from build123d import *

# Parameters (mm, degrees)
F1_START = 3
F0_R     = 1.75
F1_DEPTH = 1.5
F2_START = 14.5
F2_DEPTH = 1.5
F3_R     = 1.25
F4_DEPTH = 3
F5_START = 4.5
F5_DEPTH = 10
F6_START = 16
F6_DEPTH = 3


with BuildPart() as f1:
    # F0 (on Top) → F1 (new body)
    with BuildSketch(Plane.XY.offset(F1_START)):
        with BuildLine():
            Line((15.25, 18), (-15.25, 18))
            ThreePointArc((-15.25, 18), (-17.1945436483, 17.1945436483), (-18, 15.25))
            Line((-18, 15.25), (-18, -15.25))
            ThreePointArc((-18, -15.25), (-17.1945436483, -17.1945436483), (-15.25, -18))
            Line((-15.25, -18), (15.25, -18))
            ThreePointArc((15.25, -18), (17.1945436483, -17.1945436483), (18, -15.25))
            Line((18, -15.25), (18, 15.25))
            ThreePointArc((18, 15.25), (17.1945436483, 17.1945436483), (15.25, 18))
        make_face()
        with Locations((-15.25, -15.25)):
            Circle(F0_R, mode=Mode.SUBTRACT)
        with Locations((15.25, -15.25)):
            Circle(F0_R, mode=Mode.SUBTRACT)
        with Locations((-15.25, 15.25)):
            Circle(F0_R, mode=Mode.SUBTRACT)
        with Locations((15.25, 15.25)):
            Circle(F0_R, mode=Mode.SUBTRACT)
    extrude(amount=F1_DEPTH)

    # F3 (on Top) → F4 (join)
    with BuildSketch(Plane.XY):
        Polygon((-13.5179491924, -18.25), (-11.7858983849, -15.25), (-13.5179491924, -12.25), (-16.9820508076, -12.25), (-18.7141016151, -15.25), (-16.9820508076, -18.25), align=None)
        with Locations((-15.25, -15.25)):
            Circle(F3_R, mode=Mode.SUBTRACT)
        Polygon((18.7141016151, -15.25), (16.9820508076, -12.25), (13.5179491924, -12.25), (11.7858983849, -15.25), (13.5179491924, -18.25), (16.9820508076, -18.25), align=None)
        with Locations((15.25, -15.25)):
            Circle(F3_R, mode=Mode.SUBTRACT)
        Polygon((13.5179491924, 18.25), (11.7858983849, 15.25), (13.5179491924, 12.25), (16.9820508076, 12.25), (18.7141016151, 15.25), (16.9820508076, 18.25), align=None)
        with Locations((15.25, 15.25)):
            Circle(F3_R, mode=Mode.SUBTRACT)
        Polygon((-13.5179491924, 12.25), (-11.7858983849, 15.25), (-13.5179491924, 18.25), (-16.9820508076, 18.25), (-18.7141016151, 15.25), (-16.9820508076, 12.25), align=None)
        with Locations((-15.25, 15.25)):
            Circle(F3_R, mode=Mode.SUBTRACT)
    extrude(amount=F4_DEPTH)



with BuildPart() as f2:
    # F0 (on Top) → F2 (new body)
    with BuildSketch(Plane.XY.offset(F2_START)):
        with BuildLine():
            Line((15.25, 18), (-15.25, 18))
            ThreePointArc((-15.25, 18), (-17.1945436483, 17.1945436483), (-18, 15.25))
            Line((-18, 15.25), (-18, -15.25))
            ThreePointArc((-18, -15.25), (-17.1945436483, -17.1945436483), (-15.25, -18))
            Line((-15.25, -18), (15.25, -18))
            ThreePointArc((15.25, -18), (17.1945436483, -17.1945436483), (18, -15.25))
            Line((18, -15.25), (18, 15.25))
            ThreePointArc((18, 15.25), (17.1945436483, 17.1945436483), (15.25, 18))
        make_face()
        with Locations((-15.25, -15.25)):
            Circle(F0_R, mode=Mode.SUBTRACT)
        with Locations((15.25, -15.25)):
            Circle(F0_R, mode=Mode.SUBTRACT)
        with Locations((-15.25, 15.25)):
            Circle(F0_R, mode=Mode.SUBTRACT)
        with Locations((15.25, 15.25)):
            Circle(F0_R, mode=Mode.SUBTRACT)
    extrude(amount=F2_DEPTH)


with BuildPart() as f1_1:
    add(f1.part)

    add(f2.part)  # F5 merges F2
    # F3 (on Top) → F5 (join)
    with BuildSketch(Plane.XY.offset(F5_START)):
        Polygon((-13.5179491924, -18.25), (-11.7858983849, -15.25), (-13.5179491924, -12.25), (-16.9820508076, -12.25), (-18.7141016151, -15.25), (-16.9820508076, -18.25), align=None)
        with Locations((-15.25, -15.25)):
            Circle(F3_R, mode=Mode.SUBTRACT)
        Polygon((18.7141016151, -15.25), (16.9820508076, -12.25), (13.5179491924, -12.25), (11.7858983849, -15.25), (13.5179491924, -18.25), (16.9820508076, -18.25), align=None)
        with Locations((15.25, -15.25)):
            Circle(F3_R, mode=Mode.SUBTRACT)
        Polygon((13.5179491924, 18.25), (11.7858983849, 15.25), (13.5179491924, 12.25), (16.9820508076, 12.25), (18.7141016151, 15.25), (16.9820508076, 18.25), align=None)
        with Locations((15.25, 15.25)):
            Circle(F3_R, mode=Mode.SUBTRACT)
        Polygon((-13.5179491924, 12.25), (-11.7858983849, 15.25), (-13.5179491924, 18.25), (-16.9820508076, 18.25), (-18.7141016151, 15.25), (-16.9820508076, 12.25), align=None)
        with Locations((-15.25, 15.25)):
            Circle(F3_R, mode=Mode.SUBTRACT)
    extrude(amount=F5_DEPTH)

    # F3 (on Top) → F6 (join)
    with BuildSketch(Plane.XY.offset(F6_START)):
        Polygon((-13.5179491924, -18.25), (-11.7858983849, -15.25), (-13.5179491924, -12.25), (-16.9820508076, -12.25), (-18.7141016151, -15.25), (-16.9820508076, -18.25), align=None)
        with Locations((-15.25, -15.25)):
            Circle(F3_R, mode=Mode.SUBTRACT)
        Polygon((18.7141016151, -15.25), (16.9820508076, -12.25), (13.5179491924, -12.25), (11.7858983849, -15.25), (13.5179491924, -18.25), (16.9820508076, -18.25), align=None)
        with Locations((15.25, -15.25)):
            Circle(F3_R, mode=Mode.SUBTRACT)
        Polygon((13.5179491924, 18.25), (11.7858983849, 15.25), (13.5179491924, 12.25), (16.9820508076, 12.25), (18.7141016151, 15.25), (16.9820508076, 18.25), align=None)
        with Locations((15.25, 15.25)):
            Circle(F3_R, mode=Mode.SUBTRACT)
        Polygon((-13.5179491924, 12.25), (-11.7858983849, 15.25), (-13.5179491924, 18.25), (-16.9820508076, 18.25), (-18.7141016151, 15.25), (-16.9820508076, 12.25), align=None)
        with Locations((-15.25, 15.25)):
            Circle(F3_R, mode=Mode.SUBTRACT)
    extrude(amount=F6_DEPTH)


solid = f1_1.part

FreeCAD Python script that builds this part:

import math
import FreeCAD as App
import Part
import Sketcher

V = App.Vector
Q = App.Units.Quantity


def add_polygon(sketch, points):
    """Adds a closed chain of lines whose ends are joined by coincident constraints."""
    first, n = sketch.GeometryCount, len(points)
    for a, b in zip(points, points[1:] + points[:1]):
        sketch.addGeometry(Part.LineSegment(App.Vector(*a, 0), App.Vector(*b, 0)), False)
    for i in range(n):
        sketch.addConstraint(Sketcher.Constraint("Coincident", first + i, 2, first + (i + 1) % n, 1))

doc = App.newDocument("Part")
body = doc.addObject("PartDesign::Body", "Body")

# Sketch on XY plane
sketch1 = body.newObject("Sketcher::SketchObject", "Sketch")
sketch1.AttachmentSupport = (doc.getObject("XY_Plane"), [""])
sketch1.MapMode = "FlatFace"
sketch1.AttachmentOffset = App.Placement(V(0, 0, 3), App.Rotation())
sketch1.addGeometry(Part.LineSegment(V(15.2, 18, 0), V(-15.2, 18, 0)), False)
sketch1.addGeometry(Part.ArcOfCircle(Part.Circle(V(-15.2, 15.2, 0), V(0, 0, 1), 2.8), math.radians(90), math.radians(180)), False)
sketch1.addGeometry(Part.LineSegment(V(-18, 15.2, 0), V(-18, -15.2, 0)), False)
sketch1.addGeometry(Part.ArcOfCircle(Part.Circle(V(-15.2, -15.2, 0), V(0, 0, 1), 2.8), math.radians(180), math.radians(270)), False)
sketch1.addGeometry(Part.LineSegment(V(-15.2, -18, 0), V(15.2, -18, 0)), False)
sketch1.addGeometry(Part.ArcOfCircle(Part.Circle(V(15.2, -15.2, 0), V(0, 0, 1), 2.8), math.radians(-90), math.radians(0)), False)
sketch1.addGeometry(Part.LineSegment(V(18, -15.2, 0), V(18, 15.2, 0)), False)
sketch1.addGeometry(Part.ArcOfCircle(Part.Circle(V(15.2, 15.2, 0), V(0, 0, 1), 2.8), math.radians(0), math.radians(90)), False)
sketch1.addGeometry(Part.Circle(V(-15.2, -15.2, 0), V(0, 0, 1), 1.8), False)
sketch1.addGeometry(Part.Circle(V(15.2, -15.2, 0), V(0, 0, 1), 1.8), False)
sketch1.addGeometry(Part.Circle(V(-15.2, 15.2, 0), V(0, 0, 1), 1.8), False)
sketch1.addGeometry(Part.Circle(V(15.2, 15.2, 0), V(0, 0, 1), 1.8), False)
sketch1.addConstraint(Sketcher.Constraint("Tangent", 0, 2, 1, 1))
sketch1.addConstraint(Sketcher.Constraint("Tangent", 1, 2, 2, 1))
sketch1.addConstraint(Sketcher.Constraint("Tangent", 2, 2, 3, 1))
sketch1.addConstraint(Sketcher.Constraint("Tangent", 3, 2, 4, 1))
sketch1.addConstraint(Sketcher.Constraint("Tangent", 4, 2, 5, 1))
sketch1.addConstraint(Sketcher.Constraint("Tangent", 5, 2, 6, 1))
sketch1.addConstraint(Sketcher.Constraint("Tangent", 6, 2, 7, 1))
sketch1.addConstraint(Sketcher.Constraint("Tangent", 7, 2, 0, 1))
sketch1.addConstraint(Sketcher.Constraint("Horizontal", 0))
sketch1.addConstraint(Sketcher.Constraint("Vertical", 2))
sketch1.addConstraint(Sketcher.Constraint("Horizontal", 4))
sketch1.addConstraint(Sketcher.Constraint("Vertical", 6))
sketch1.addConstraint(Sketcher.Constraint("Coincident", 8, 3, 3, 3))
sketch1.addConstraint(Sketcher.Constraint("Coincident", 9, 3, 5, 3))
sketch1.addConstraint(Sketcher.Constraint("Coincident", 10, 3, 1, 3))
sketch1.addConstraint(Sketcher.Constraint("Coincident", 11, 3, 7, 3))
sketch1.addConstraint(Sketcher.Constraint("Equal", 1, 3))
sketch1.addConstraint(Sketcher.Constraint("Equal", 3, 5))
sketch1.addConstraint(Sketcher.Constraint("Equal", 5, 7))
sketch1.addConstraint(Sketcher.Constraint("Equal", 8, 9))
sketch1.addConstraint(Sketcher.Constraint("Equal", 9, 10))
sketch1.addConstraint(Sketcher.Constraint("Equal", 10, 11))
sketch1.addConstraint(Sketcher.Constraint("Symmetric", 1, 3, 5, 3, -1, 1))
sketch1.addConstraint(Sketcher.Constraint("Equal", 4, 2))
sketch1.addConstraint(Sketcher.Constraint("Diameter", 8, 3.5))
sketch1.addConstraint(Sketcher.Constraint("Radius", 1, 2.75))
sketch1.addConstraint(Sketcher.Constraint("DistanceX", 0, 2, 0, 1, 30.5))
pad1 = body.newObject("PartDesign::Pad", "Pad")
pad1.Profile = sketch1
pad1.Length = 1.5

# Sketch on XY plane
sketch2 = body.newObject("Sketcher::SketchObject", "Sketch001")
sketch2.AttachmentSupport = (doc.getObject("XY_Plane"), [""])
sketch2.MapMode = "FlatFace"
add_polygon(sketch2, [(-13.5, -18.2), (-11.8, -15.2), (-13.5, -12.2), (-17, -12.2), (-18.7, -15.2), (-17, -18.2)])  # lines 0-5
sketch2.addGeometry(Part.Circle(V(-15.2, -15.2, 0), V(0, 0, 1), 1.2), False)  # 6
add_polygon(sketch2, [(18.7, -15.2), (17, -12.2), (13.5, -12.2), (11.8, -15.2), (13.5, -18.2), (17, -18.2)])  # lines 7-12
sketch2.addGeometry(Part.Circle(V(15.2, -15.2, 0), V(0, 0, 1), 1.2), False)  # 13
add_polygon(sketch2, [(13.5, 18.2), (11.8, 15.2), (13.5, 12.2), (17, 12.2), (18.7, 15.2), (17, 18.2)])  # lines 14-19
sketch2.addGeometry(Part.Circle(V(15.2, 15.2, 0), V(0, 0, 1), 1.2), False)  # 20
add_polygon(sketch2, [(-13.5, 12.2), (-11.8, 15.2), (-13.5, 18.2), (-17, 18.2), (-18.7, 15.2), (-17, 12.2)])  # lines 21-26
sketch2.addGeometry(Part.Circle(V(-15.2, 15.2, 0), V(0, 0, 1), 1.2), False)  # 27
sketch2.addConstraint(Sketcher.Constraint("Horizontal", 2))
sketch2.addConstraint(Sketcher.Constraint("Horizontal", 5))
sketch2.addConstraint(Sketcher.Constraint("Horizontal", 8))
sketch2.addConstraint(Sketcher.Constraint("Horizontal", 11))
sketch2.addConstraint(Sketcher.Constraint("Horizontal", 16))
sketch2.addConstraint(Sketcher.Constraint("Horizontal", 19))
sketch2.addConstraint(Sketcher.Constraint("Horizontal", 23))
sketch2.addConstraint(Sketcher.Constraint("Horizontal", 26))
sketch2.addConstraint(Sketcher.Constraint("Equal", 6, 13))
sketch2.addConstraint(Sketcher.Constraint("Equal", 13, 20))
sketch2.addConstraint(Sketcher.Constraint("Equal", 20, 27))
sketch2.addConstraint(Sketcher.Constraint("Symmetric", 6, 3, 20, 3, -1, 1))
sketch2.addConstraint(Sketcher.Constraint("Symmetric", 13, 3, 27, 3, -1, 1))
sketch2.addConstraint(Sketcher.Constraint("Symmetric", 0, 2, 14, 2, -1, 1))
sketch2.addConstraint(Sketcher.Constraint("Symmetric", 1, 2, 15, 2, -1, 1))
sketch2.addConstraint(Sketcher.Constraint("Symmetric", 3, 2, 17, 2, -1, 1))
sketch2.addConstraint(Sketcher.Constraint("Symmetric", 4, 2, 18, 2, -1, 1))
sketch2.addConstraint(Sketcher.Constraint("Symmetric", 9, 2, 21, 2, -1, 1))
sketch2.addConstraint(Sketcher.Constraint("Symmetric", 10, 2, 22, 2, -1, 1))
sketch2.addConstraint(Sketcher.Constraint("Symmetric", 12, 2, 24, 2, -1, 1))
sketch2.addConstraint(Sketcher.Constraint("Symmetric", 7, 2, 25, 2, -1, 1))
sketch2.addConstraint(Sketcher.Constraint("Symmetric", 6, 3, 13, 3, -2))
sketch2.addConstraint(Sketcher.Constraint("Symmetric", 2, 2, 7, 2, -2))
sketch2.addConstraint(Sketcher.Constraint("Symmetric", 0, 2, 9, 2, -2))
sketch2.addConstraint(Sketcher.Constraint("Symmetric", 5, 2, 10, 2, -2))
sketch2.addConstraint(Sketcher.Constraint("Symmetric", 3, 2, 12, 2, -2))
sketch2.addConstraint(Sketcher.Constraint("Parallel", 0, 3))
sketch2.addConstraint(Sketcher.Constraint("Parallel", 1, 4))
sketch2.addConstraint(Sketcher.Constraint("Parallel", 4, 7))
sketch2.addConstraint(Sketcher.Constraint("Parallel", 3, 9))
sketch2.addConstraint(Sketcher.Constraint("Parallel", 9, 12))
sketch2.addConstraint(Sketcher.Constraint("Parallel", 12, 14))
sketch2.addConstraint(Sketcher.Constraint("Parallel", 14, 17))
sketch2.addConstraint(Sketcher.Constraint("Parallel", 17, 21))
sketch2.addConstraint(Sketcher.Constraint("Parallel", 21, 24))
sketch2.addConstraint(Sketcher.Constraint("Horizontal", 13, 3, 0, 2))
sketch2.addConstraint(Sketcher.Constraint("Horizontal", 0, 2, 3, 2))
sketch2.addConstraint(Sketcher.Constraint("Vertical", 2, 2, 4, 2))
sketch2.addConstraint(Sketcher.Constraint("Diameter", 6, 2.5))
sketch2.addConstraint(Sketcher.Constraint("Angle", 0, Q("60 deg")))
sketch2.addConstraint(Sketcher.Constraint("DistanceY", 0, 2, 1, 2, 3.0))
sketch2.addConstraint(Sketcher.Constraint("DistanceX", 6, 3, 13, 3, 30.5))
sketch2.addConstraint(Sketcher.Constraint("DistanceY", 13, 3, 20, 3, 30.5))
sketch2.addConstraint(Sketcher.Constraint("DistanceX", 1, 2, 7, 2, 30.5))
sketch2.addConstraint(Sketcher.Constraint("DistanceX", 2, 2, 2, 1, 3.464102))
pad2 = body.newObject("PartDesign::Pad", "Pad001")
pad2.Profile = sketch2
pad2.Length = 3
body2 = doc.addObject("PartDesign::Body", "Body001")

# Sketch on XY plane
sketch3 = body2.newObject("Sketcher::SketchObject", "Sketch002")
sketch3.AttachmentSupport = (doc.getObject("XY_Plane001"), [""])
sketch3.MapMode = "FlatFace"
sketch3.AttachmentOffset = App.Placement(V(0, 0, 14.5), App.Rotation())
sketch3.addGeometry(Part.LineSegment(V(15.2, 18, 0), V(-15.2, 18, 0)), False)
sketch3.addGeometry(Part.ArcOfCircle(Part.Circle(V(-15.2, 15.2, 0), V(0, 0, 1), 2.8), math.radians(90), math.radians(180)), False)
sketch3.addGeometry(Part.LineSegment(V(-18, 15.2, 0), V(-18, -15.2, 0)), False)
sketch3.addGeometry(Part.ArcOfCircle(Part.Circle(V(-15.2, -15.2, 0), V(0, 0, 1), 2.8), math.radians(180), math.radians(270)), False)
sketch3.addGeometry(Part.LineSegment(V(-15.2, -18, 0), V(15.2, -18, 0)), False)
sketch3.addGeometry(Part.ArcOfCircle(Part.Circle(V(15.2, -15.2, 0), V(0, 0, 1), 2.8), math.radians(-90), math.radians(0)), False)
sketch3.addGeometry(Part.LineSegment(V(18, -15.2, 0), V(18, 15.2, 0)), False)
sketch3.addGeometry(Part.ArcOfCircle(Part.Circle(V(15.2, 15.2, 0), V(0, 0, 1), 2.8), math.radians(0), math.radians(90)), False)
sketch3.addGeometry(Part.Circle(V(-15.2, -15.2, 0), V(0, 0, 1), 1.8), False)
sketch3.addGeometry(Part.Circle(V(15.2, -15.2, 0), V(0, 0, 1), 1.8), False)
sketch3.addGeometry(Part.Circle(V(-15.2, 15.2, 0), V(0, 0, 1), 1.8), False)
sketch3.addGeometry(Part.Circle(V(15.2, 15.2, 0), V(0, 0, 1), 1.8), False)
sketch3.addConstraint(Sketcher.Constraint("Tangent", 0, 2, 1, 1))
sketch3.addConstraint(Sketcher.Constraint("Tangent", 1, 2, 2, 1))
sketch3.addConstraint(Sketcher.Constraint("Tangent", 2, 2, 3, 1))
sketch3.addConstraint(Sketcher.Constraint("Tangent", 3, 2, 4, 1))
sketch3.addConstraint(Sketcher.Constraint("Tangent", 4, 2, 5, 1))
sketch3.addConstraint(Sketcher.Constraint("Tangent", 5, 2, 6, 1))
sketch3.addConstraint(Sketcher.Constraint("Tangent", 6, 2, 7, 1))
sketch3.addConstraint(Sketcher.Constraint("Tangent", 7, 2, 0, 1))
sketch3.addConstraint(Sketcher.Constraint("Horizontal", 0))
sketch3.addConstraint(Sketcher.Constraint("Vertical", 2))
sketch3.addConstraint(Sketcher.Constraint("Horizontal", 4))
sketch3.addConstraint(Sketcher.Constraint("Vertical", 6))
sketch3.addConstraint(Sketcher.Constraint("Coincident", 8, 3, 3, 3))
sketch3.addConstraint(Sketcher.Constraint("Coincident", 9, 3, 5, 3))
sketch3.addConstraint(Sketcher.Constraint("Coincident", 10, 3, 1, 3))
sketch3.addConstraint(Sketcher.Constraint("Coincident", 11, 3, 7, 3))
sketch3.addConstraint(Sketcher.Constraint("Equal", 1, 3))
sketch3.addConstraint(Sketcher.Constraint("Equal", 3, 5))
sketch3.addConstraint(Sketcher.Constraint("Equal", 5, 7))
sketch3.addConstraint(Sketcher.Constraint("Equal", 8, 9))
sketch3.addConstraint(Sketcher.Constraint("Equal", 9, 10))
sketch3.addConstraint(Sketcher.Constraint("Equal", 10, 11))
sketch3.addConstraint(Sketcher.Constraint("Symmetric", 1, 3, 5, 3, -1, 1))
sketch3.addConstraint(Sketcher.Constraint("Equal", 4, 2))
sketch3.addConstraint(Sketcher.Constraint("Diameter", 8, 3.5))
sketch3.addConstraint(Sketcher.Constraint("Radius", 1, 2.75))
sketch3.addConstraint(Sketcher.Constraint("DistanceX", 0, 2, 0, 1, 30.5))
pad3 = body2.newObject("PartDesign::Pad", "Pad002")
pad3.Profile = sketch3
pad3.Length = 1.5
body.AllowCompound = True
doc.recompute()

boolean = body.newObject("PartDesign::Boolean", "Boolean")
boolean.Type = "Fuse"
boolean.addObjects([body2])

# Sketch on XY plane
sketch4 = body.newObject("Sketcher::SketchObject", "Sketch003")
sketch4.AttachmentSupport = (doc.getObject("XY_Plane"), [""])
sketch4.MapMode = "FlatFace"
sketch4.AttachmentOffset = App.Placement(V(0, 0, 4.5), App.Rotation())
add_polygon(sketch4, [(-13.5, -18.2), (-11.8, -15.2), (-13.5, -12.2), (-17, -12.2), (-18.7, -15.2), (-17, -18.2)])  # lines 0-5
sketch4.addGeometry(Part.Circle(V(-15.2, -15.2, 0), V(0, 0, 1), 1.2), False)  # 6
add_polygon(sketch4, [(18.7, -15.2), (17, -12.2), (13.5, -12.2), (11.8, -15.2), (13.5, -18.2), (17, -18.2)])  # lines 7-12
sketch4.addGeometry(Part.Circle(V(15.2, -15.2, 0), V(0, 0, 1), 1.2), False)  # 13
add_polygon(sketch4, [(13.5, 18.2), (11.8, 15.2), (13.5, 12.2), (17, 12.2), (18.7, 15.2), (17, 18.2)])  # lines 14-19
sketch4.addGeometry(Part.Circle(V(15.2, 15.2, 0), V(0, 0, 1), 1.2), False)  # 20
add_polygon(sketch4, [(-13.5, 12.2), (-11.8, 15.2), (-13.5, 18.2), (-17, 18.2), (-18.7, 15.2), (-17, 12.2)])  # lines 21-26
sketch4.addGeometry(Part.Circle(V(-15.2, 15.2, 0), V(0, 0, 1), 1.2), False)  # 27
sketch4.addConstraint(Sketcher.Constraint("Horizontal", 2))
sketch4.addConstraint(Sketcher.Constraint("Horizontal", 5))
sketch4.addConstraint(Sketcher.Constraint("Horizontal", 8))
sketch4.addConstraint(Sketcher.Constraint("Horizontal", 11))
sketch4.addConstraint(Sketcher.Constraint("Horizontal", 16))
sketch4.addConstraint(Sketcher.Constraint("Horizontal", 19))
sketch4.addConstraint(Sketcher.Constraint("Horizontal", 23))
sketch4.addConstraint(Sketcher.Constraint("Horizontal", 26))
sketch4.addConstraint(Sketcher.Constraint("Equal", 6, 13))
sketch4.addConstraint(Sketcher.Constraint("Equal", 13, 20))
sketch4.addConstraint(Sketcher.Constraint("Equal", 20, 27))
sketch4.addConstraint(Sketcher.Constraint("Symmetric", 6, 3, 20, 3, -1, 1))
sketch4.addConstraint(Sketcher.Constraint("Symmetric", 13, 3, 27, 3, -1, 1))
sketch4.addConstraint(Sketcher.Constraint("Symmetric", 0, 2, 14, 2, -1, 1))
sketch4.addConstraint(Sketcher.Constraint("Symmetric", 1, 2, 15, 2, -1, 1))
sketch4.addConstraint(Sketcher.Constraint("Symmetric", 3, 2, 17, 2, -1, 1))
sketch4.addConstraint(Sketcher.Constraint("Symmetric", 4, 2, 18, 2, -1, 1))
sketch4.addConstraint(Sketcher.Constraint("Symmetric", 9, 2, 21, 2, -1, 1))
sketch4.addConstraint(Sketcher.Constraint("Symmetric", 10, 2, 22, 2, -1, 1))
sketch4.addConstraint(Sketcher.Constraint("Symmetric", 12, 2, 24, 2, -1, 1))
sketch4.addConstraint(Sketcher.Constraint("Symmetric", 7, 2, 25, 2, -1, 1))
sketch4.addConstraint(Sketcher.Constraint("Symmetric", 6, 3, 13, 3, -2))
sketch4.addConstraint(Sketcher.Constraint("Symmetric", 2, 2, 7, 2, -2))
sketch4.addConstraint(Sketcher.Constraint("Symmetric", 0, 2, 9, 2, -2))
sketch4.addConstraint(Sketcher.Constraint("Symmetric", 5, 2, 10, 2, -2))
sketch4.addConstraint(Sketcher.Constraint("Symmetric", 3, 2, 12, 2, -2))
sketch4.addConstraint(Sketcher.Constraint("Parallel", 0, 3))
sketch4.addConstraint(Sketcher.Constraint("Parallel", 1, 4))
sketch4.addConstraint(Sketcher.Constraint("Parallel", 4, 7))
sketch4.addConstraint(Sketcher.Constraint("Parallel", 3, 9))
sketch4.addConstraint(Sketcher.Constraint("Parallel", 9, 12))
sketch4.addConstraint(Sketcher.Constraint("Parallel", 12, 14))
sketch4.addConstraint(Sketcher.Constraint("Parallel", 14, 17))
sketch4.addConstraint(Sketcher.Constraint("Parallel", 17, 21))
sketch4.addConstraint(Sketcher.Constraint("Parallel", 21, 24))
sketch4.addConstraint(Sketcher.Constraint("Horizontal", 13, 3, 0, 2))
sketch4.addConstraint(Sketcher.Constraint("Horizontal", 0, 2, 3, 2))
sketch4.addConstraint(Sketcher.Constraint("Vertical", 2, 2, 4, 2))
sketch4.addConstraint(Sketcher.Constraint("Diameter", 6, 2.5))
sketch4.addConstraint(Sketcher.Constraint("Angle", 0, Q("60 deg")))
sketch4.addConstraint(Sketcher.Constraint("DistanceY", 0, 2, 1, 2, 3.0))
sketch4.addConstraint(Sketcher.Constraint("DistanceX", 6, 3, 13, 3, 30.5))
sketch4.addConstraint(Sketcher.Constraint("DistanceY", 13, 3, 20, 3, 30.5))
sketch4.addConstraint(Sketcher.Constraint("DistanceX", 1, 2, 7, 2, 30.5))
sketch4.addConstraint(Sketcher.Constraint("DistanceX", 2, 2, 2, 1, 3.464102))
pad4 = body.newObject("PartDesign::Pad", "Pad003")
pad4.Profile = sketch4
pad4.Length = 10

# Sketch on XY plane
sketch5 = body.newObject("Sketcher::SketchObject", "Sketch004")
sketch5.AttachmentSupport = (doc.getObject("XY_Plane"), [""])
sketch5.MapMode = "FlatFace"
sketch5.AttachmentOffset = App.Placement(V(0, 0, 16), App.Rotation())
add_polygon(sketch5, [(-13.5, -18.2), (-11.8, -15.2), (-13.5, -12.2), (-17, -12.2), (-18.7, -15.2), (-17, -18.2)])  # lines 0-5
sketch5.addGeometry(Part.Circle(V(-15.2, -15.2, 0), V(0, 0, 1), 1.2), False)  # 6
add_polygon(sketch5, [(18.7, -15.2), (17, -12.2), (13.5, -12.2), (11.8, -15.2), (13.5, -18.2), (17, -18.2)])  # lines 7-12
sketch5.addGeometry(Part.Circle(V(15.2, -15.2, 0), V(0, 0, 1), 1.2), False)  # 13
add_polygon(sketch5, [(13.5, 18.2), (11.8, 15.2), (13.5, 12.2), (17, 12.2), (18.7, 15.2), (17, 18.2)])  # lines 14-19
sketch5.addGeometry(Part.Circle(V(15.2, 15.2, 0), V(0, 0, 1), 1.2), False)  # 20
add_polygon(sketch5, [(-13.5, 12.2), (-11.8, 15.2), (-13.5, 18.2), (-17, 18.2), (-18.7, 15.2), (-17, 12.2)])  # lines 21-26
sketch5.addGeometry(Part.Circle(V(-15.2, 15.2, 0), V(0, 0, 1), 1.2), False)  # 27
sketch5.addConstraint(Sketcher.Constraint("Horizontal", 2))
sketch5.addConstraint(Sketcher.Constraint("Horizontal", 5))
sketch5.addConstraint(Sketcher.Constraint("Horizontal", 8))
sketch5.addConstraint(Sketcher.Constraint("Horizontal", 11))
sketch5.addConstraint(Sketcher.Constraint("Horizontal", 16))
sketch5.addConstraint(Sketcher.Constraint("Horizontal", 19))
sketch5.addConstraint(Sketcher.Constraint("Horizontal", 23))
sketch5.addConstraint(Sketcher.Constraint("Horizontal", 26))
sketch5.addConstraint(Sketcher.Constraint("Equal", 6, 13))
sketch5.addConstraint(Sketcher.Constraint("Equal", 13, 20))
sketch5.addConstraint(Sketcher.Constraint("Equal", 20, 27))
sketch5.addConstraint(Sketcher.Constraint("Symmetric", 6, 3, 20, 3, -1, 1))
sketch5.addConstraint(Sketcher.Constraint("Symmetric", 13, 3, 27, 3, -1, 1))
sketch5.addConstraint(Sketcher.Constraint("Symmetric", 0, 2, 14, 2, -1, 1))
sketch5.addConstraint(Sketcher.Constraint("Symmetric", 1, 2, 15, 2, -1, 1))
sketch5.addConstraint(Sketcher.Constraint("Symmetric", 3, 2, 17, 2, -1, 1))
sketch5.addConstraint(Sketcher.Constraint("Symmetric", 4, 2, 18, 2, -1, 1))
sketch5.addConstraint(Sketcher.Constraint("Symmetric", 9, 2, 21, 2, -1, 1))
sketch5.addConstraint(Sketcher.Constraint("Symmetric", 10, 2, 22, 2, -1, 1))
sketch5.addConstraint(Sketcher.Constraint("Symmetric", 12, 2, 24, 2, -1, 1))
sketch5.addConstraint(Sketcher.Constraint("Symmetric", 7, 2, 25, 2, -1, 1))
sketch5.addConstraint(Sketcher.Constraint("Symmetric", 6, 3, 13, 3, -2))
sketch5.addConstraint(Sketcher.Constraint("Symmetric", 2, 2, 7, 2, -2))
sketch5.addConstraint(Sketcher.Constraint("Symmetric", 0, 2, 9, 2, -2))
sketch5.addConstraint(Sketcher.Constraint("Symmetric", 5, 2, 10, 2, -2))
sketch5.addConstraint(Sketcher.Constraint("Symmetric", 3, 2, 12, 2, -2))
sketch5.addConstraint(Sketcher.Constraint("Parallel", 0, 3))
sketch5.addConstraint(Sketcher.Constraint("Parallel", 1, 4))
sketch5.addConstraint(Sketcher.Constraint("Parallel", 4, 7))
sketch5.addConstraint(Sketcher.Constraint("Parallel", 3, 9))
sketch5.addConstraint(Sketcher.Constraint("Parallel", 9, 12))
sketch5.addConstraint(Sketcher.Constraint("Parallel", 12, 14))
sketch5.addConstraint(Sketcher.Constraint("Parallel", 14, 17))
sketch5.addConstraint(Sketcher.Constraint("Parallel", 17, 21))
sketch5.addConstraint(Sketcher.Constraint("Parallel", 21, 24))
sketch5.addConstraint(Sketcher.Constraint("Horizontal", 13, 3, 0, 2))
sketch5.addConstraint(Sketcher.Constraint("Horizontal", 0, 2, 3, 2))
sketch5.addConstraint(Sketcher.Constraint("Vertical", 2, 2, 4, 2))
sketch5.addConstraint(Sketcher.Constraint("Diameter", 6, 2.5))
sketch5.addConstraint(Sketcher.Constraint("Angle", 0, Q("60 deg")))
sketch5.addConstraint(Sketcher.Constraint("DistanceY", 0, 2, 1, 2, 3.0))
sketch5.addConstraint(Sketcher.Constraint("DistanceX", 6, 3, 13, 3, 30.5))
sketch5.addConstraint(Sketcher.Constraint("DistanceY", 13, 3, 20, 3, 30.5))
sketch5.addConstraint(Sketcher.Constraint("DistanceX", 1, 2, 7, 2, 30.5))
sketch5.addConstraint(Sketcher.Constraint("DistanceX", 2, 2, 2, 1, 3.464102))
pad5 = body.newObject("PartDesign::Pad", "Pad004")
pad5.Profile = sketch5
pad5.Length = 3

doc.recompute()
